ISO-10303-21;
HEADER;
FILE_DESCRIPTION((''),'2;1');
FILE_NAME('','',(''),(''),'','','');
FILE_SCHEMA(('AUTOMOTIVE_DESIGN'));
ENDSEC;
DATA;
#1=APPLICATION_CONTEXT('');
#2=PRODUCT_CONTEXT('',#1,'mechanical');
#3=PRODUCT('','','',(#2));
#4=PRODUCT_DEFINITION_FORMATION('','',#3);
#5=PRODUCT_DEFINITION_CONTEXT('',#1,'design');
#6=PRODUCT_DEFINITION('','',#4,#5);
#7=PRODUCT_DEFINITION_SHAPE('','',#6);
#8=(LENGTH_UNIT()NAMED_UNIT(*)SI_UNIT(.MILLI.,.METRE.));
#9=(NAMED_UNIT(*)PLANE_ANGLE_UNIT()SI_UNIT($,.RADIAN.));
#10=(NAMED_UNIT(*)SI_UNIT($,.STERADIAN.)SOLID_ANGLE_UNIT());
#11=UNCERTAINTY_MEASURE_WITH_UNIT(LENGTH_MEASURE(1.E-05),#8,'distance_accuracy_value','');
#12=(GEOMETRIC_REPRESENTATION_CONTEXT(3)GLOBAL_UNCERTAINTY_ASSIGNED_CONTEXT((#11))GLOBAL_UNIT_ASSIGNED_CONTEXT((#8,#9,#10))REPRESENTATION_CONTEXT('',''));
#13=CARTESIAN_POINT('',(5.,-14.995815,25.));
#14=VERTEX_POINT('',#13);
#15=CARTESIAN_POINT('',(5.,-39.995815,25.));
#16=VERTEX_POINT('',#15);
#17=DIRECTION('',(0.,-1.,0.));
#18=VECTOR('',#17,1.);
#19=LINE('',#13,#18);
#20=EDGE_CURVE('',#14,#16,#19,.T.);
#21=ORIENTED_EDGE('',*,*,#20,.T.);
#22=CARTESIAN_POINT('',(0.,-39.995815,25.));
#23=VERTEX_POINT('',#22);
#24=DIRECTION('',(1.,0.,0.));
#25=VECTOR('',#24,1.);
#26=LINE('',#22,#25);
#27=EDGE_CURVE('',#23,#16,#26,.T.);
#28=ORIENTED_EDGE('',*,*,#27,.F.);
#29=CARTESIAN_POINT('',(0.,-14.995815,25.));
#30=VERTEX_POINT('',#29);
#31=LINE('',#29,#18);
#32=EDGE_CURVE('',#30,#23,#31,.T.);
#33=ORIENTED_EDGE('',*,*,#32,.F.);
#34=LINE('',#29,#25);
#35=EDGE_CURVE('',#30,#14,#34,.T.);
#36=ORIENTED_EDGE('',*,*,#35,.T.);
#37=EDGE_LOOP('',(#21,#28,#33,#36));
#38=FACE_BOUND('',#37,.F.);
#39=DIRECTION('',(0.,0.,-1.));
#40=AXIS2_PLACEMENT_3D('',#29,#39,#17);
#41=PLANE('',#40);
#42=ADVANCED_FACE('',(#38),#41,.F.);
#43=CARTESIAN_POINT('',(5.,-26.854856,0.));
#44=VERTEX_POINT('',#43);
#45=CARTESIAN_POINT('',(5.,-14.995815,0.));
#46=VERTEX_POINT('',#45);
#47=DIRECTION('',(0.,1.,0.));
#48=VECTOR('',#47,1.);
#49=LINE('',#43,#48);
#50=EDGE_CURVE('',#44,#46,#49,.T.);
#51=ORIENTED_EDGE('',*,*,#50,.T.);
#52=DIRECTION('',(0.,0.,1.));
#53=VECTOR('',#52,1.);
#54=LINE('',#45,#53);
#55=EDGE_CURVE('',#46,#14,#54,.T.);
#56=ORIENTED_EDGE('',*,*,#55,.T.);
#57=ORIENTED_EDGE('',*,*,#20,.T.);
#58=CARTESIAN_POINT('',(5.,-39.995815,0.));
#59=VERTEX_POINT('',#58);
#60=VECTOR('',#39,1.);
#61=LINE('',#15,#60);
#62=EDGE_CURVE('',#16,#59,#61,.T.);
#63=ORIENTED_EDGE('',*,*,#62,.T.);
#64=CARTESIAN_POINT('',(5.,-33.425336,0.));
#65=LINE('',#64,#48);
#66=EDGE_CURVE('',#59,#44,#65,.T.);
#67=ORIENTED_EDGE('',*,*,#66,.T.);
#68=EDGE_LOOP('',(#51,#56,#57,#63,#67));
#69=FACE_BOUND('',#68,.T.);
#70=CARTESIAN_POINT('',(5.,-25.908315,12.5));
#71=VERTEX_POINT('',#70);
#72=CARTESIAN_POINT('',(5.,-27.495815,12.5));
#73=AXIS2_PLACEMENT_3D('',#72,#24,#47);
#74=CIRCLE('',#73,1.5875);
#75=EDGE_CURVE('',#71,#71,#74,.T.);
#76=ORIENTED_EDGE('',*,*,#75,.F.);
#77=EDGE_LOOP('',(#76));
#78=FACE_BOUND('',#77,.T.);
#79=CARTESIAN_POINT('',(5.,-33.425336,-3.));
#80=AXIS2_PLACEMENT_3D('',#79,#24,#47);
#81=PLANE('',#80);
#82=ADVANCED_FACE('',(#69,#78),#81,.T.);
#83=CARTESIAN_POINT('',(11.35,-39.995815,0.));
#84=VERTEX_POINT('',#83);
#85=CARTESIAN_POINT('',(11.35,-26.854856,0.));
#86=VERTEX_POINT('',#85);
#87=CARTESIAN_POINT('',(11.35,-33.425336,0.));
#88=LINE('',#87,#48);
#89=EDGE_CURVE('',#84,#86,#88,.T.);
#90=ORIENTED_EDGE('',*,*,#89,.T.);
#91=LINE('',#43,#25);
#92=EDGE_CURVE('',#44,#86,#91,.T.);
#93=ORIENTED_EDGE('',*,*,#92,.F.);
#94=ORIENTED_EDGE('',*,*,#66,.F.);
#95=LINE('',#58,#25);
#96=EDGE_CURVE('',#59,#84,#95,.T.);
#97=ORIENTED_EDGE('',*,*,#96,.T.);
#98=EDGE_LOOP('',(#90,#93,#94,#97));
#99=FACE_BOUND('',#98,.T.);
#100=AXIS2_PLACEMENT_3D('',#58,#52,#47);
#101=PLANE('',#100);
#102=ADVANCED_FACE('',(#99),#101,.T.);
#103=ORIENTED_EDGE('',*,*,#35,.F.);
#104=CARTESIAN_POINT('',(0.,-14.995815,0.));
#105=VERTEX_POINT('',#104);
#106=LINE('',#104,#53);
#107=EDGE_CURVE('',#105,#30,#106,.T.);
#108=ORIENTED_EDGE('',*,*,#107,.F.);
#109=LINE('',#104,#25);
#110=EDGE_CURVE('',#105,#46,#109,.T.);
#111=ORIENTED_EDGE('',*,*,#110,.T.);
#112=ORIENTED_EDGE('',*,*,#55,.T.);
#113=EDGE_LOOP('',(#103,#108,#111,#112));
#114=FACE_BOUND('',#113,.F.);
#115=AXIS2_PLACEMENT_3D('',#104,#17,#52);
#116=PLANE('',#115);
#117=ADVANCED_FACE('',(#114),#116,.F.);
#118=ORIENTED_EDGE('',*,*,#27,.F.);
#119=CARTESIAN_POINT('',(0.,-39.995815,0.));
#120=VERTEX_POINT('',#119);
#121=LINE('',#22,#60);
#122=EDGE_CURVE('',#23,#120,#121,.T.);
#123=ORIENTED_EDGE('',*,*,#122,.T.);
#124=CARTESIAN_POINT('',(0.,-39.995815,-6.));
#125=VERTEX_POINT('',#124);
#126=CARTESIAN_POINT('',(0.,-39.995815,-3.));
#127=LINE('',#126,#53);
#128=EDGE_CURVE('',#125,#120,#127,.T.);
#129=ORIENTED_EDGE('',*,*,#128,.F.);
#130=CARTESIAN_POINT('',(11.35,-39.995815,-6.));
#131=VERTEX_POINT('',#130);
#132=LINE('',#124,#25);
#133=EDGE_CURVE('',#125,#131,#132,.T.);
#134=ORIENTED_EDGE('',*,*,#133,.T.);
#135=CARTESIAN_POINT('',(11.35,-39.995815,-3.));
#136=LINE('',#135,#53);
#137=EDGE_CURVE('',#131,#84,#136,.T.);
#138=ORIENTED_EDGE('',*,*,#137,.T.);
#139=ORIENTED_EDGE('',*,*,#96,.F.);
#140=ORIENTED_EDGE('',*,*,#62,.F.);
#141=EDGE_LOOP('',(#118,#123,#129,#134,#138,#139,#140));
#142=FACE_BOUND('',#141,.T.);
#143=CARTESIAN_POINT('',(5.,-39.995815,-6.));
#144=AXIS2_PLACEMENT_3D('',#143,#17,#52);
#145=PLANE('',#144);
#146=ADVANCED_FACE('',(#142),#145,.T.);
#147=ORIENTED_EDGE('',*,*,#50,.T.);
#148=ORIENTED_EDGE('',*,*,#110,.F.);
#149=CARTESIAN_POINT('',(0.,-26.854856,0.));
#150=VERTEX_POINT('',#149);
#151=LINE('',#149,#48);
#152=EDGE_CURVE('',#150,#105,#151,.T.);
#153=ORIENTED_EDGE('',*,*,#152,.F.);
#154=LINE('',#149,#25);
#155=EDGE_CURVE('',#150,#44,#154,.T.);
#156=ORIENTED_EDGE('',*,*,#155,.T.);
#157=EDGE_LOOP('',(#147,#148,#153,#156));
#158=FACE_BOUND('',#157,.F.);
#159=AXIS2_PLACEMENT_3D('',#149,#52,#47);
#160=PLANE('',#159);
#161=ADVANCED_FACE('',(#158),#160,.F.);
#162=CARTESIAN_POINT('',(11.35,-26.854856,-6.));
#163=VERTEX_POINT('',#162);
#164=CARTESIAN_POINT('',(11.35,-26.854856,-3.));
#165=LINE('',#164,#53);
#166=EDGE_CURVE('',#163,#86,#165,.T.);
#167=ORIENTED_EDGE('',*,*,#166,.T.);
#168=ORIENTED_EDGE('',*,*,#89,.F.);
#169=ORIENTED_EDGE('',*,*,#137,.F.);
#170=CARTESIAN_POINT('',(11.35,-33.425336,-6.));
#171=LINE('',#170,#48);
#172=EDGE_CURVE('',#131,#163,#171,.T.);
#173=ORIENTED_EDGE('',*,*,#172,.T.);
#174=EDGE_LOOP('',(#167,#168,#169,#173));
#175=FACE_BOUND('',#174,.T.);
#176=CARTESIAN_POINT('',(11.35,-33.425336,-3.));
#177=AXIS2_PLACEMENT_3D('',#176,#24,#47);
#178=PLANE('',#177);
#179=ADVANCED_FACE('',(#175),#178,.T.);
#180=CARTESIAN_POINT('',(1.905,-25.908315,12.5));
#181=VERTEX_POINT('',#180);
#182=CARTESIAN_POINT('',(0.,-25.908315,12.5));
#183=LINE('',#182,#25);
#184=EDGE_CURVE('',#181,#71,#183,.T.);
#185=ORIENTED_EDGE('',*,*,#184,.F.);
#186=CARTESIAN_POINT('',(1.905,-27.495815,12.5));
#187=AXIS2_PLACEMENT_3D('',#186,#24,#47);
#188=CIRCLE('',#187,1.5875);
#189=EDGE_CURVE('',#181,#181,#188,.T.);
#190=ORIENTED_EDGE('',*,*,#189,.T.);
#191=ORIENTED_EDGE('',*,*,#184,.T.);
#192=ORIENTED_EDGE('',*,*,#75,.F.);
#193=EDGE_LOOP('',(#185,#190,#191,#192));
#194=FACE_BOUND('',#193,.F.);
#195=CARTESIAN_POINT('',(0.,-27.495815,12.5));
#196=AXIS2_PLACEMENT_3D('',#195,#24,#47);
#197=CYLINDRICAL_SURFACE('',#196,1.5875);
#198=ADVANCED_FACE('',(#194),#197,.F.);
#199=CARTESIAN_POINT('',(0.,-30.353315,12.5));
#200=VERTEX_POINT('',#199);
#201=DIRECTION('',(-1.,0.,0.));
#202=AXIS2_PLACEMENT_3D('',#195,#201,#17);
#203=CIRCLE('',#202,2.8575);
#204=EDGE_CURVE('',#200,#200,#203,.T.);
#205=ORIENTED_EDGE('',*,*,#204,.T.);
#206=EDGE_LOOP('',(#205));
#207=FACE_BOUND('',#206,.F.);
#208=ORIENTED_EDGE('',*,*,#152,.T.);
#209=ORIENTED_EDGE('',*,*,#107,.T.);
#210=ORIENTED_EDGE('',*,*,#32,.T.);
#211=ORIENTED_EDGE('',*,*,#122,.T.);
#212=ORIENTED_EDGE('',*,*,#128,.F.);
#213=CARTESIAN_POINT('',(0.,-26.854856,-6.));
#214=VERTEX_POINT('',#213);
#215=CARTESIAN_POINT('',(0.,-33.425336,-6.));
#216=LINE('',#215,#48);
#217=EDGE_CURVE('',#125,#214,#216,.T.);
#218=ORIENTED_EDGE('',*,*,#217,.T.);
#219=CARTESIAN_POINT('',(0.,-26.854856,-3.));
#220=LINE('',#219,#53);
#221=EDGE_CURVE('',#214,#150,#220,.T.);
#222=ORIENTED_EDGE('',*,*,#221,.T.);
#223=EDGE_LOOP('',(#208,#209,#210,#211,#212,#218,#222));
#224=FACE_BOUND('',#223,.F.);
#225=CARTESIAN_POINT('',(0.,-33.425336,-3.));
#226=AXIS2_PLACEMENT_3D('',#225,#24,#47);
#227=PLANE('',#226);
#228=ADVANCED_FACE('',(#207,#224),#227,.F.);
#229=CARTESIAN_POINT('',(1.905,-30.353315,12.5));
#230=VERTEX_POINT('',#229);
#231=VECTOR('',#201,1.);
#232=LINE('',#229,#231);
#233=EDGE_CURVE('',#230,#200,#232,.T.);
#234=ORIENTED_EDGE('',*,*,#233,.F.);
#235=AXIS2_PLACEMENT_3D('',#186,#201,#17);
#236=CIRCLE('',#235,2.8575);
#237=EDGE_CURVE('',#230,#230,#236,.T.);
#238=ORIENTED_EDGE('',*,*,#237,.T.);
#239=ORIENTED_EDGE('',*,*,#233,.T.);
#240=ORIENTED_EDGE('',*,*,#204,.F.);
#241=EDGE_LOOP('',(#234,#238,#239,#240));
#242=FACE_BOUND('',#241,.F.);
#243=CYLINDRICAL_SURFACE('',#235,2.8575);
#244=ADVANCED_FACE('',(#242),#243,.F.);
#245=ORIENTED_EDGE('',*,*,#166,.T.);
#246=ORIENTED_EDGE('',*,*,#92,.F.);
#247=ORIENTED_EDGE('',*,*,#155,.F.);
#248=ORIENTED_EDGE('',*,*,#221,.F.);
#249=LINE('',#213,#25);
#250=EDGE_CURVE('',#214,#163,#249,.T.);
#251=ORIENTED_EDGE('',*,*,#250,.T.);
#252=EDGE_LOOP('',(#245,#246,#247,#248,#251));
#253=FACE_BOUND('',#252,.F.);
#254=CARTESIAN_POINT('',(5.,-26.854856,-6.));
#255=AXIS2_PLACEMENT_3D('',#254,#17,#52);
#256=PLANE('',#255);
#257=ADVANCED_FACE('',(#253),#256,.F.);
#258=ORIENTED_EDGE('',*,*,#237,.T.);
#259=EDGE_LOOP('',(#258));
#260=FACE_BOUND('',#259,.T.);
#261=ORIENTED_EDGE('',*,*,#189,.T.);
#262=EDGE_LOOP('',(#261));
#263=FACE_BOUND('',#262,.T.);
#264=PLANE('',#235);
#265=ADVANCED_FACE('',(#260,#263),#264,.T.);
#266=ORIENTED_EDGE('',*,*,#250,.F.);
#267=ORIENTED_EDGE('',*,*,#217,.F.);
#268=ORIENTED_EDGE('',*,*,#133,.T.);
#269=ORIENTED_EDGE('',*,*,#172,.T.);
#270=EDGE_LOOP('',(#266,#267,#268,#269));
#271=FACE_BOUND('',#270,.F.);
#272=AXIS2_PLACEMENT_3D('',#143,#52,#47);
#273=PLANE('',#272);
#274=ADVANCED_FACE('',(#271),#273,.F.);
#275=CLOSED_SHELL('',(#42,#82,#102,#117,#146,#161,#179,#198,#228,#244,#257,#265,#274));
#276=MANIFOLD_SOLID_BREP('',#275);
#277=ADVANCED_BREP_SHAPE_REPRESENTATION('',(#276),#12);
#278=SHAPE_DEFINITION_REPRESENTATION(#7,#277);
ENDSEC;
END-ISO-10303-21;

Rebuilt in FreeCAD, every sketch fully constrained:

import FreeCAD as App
import Part
import Sketcher
from FreeCAD import Vector
Q = App.Units.Quantity

doc = App.newDocument("Part")
params = doc.addObject("Spreadsheet::Sheet", "Params")
for row, (alias, value) in enumerate([
    ("sketch1_width", "25 mm"),
    ("sketch1_height", "6 mm"),
    ("pad1_length", "5 mm"),
    ("hole_diameter", "3.175 mm"),
    ("hole_cbore_diameter", "5.715 mm"),
    ("hole_cbore_depth", "1.905 mm"),
    ("sketch3_height", "6 mm"),
    ("pad2_length", "6.35 mm"),
], start=1):
    params.set(f"A{row}", alias)
    params.set(f"B{row}", "=" + value)
    params.setAlias(f"B{row}", alias)

body = doc.addObject("PartDesign::Body", "Body")

# Sketch on YZ plane
sketch1 = body.newObject("Sketcher::SketchObject", "Sketch")
sketch1.AttachmentSupport = (doc.getObject("YZ_Plane"), [""])
sketch1.MapMode = "FlatFace"
sketch1.addGeometry(Part.LineSegment(Vector(-40, 0, 0), Vector(-40, -6, 0)), False)
sketch1.addGeometry(Part.LineSegment(Vector(-40, -6, 0), Vector(-27, -6, 0)), False)
sketch1.addGeometry(Part.LineSegment(Vector(-27, -6, 0), Vector(-27, 0, 0)), False)
sketch1.addGeometry(Part.LineSegment(Vector(-27, 0, 0), Vector(-15, 0, 0)), False)
sketch1.addGeometry(Part.LineSegment(Vector(-15, 0, 0), Vector(-15, 25, 0)), False)
sketch1.addGeometry(Part.LineSegment(Vector(-15, 25, 0), Vector(-40, 25, 0)), False)
sketch1.addGeometry(Part.LineSegment(Vector(-40, 25, 0), Vector(-40, 0, 0)), False)
sketch1.addConstraint(Sketcher.Constraint("Coincident", 0, 2, 1, 1))
sketch1.addConstraint(Sketcher.Constraint("Coincident", 1, 2, 2, 1))
sketch1.addConstraint(Sketcher.Constraint("Coincident", 2, 2, 3, 1))
sketch1.addConstraint(Sketcher.Constraint("Coincident", 3, 2, 4, 1))
sketch1.addConstraint(Sketcher.Constraint("Coincident", 4, 2, 5, 1))
sketch1.addConstraint(Sketcher.Constraint("Coincident", 5, 2, 6, 1))
sketch1.addConstraint(Sketcher.Constraint("Coincident", 6, 2, 0, 1))
sketch1.addConstraint(Sketcher.Constraint("Vertical", 0))
sketch1.addConstraint(Sketcher.Constraint("Horizontal", 1))
sketch1.addConstraint(Sketcher.Constraint("Vertical", 2))
sketch1.addConstraint(Sketcher.Constraint("Horizontal", 3))
sketch1.addConstraint(Sketcher.Constraint("Vertical", 4))
sketch1.addConstraint(Sketcher.Constraint("Horizontal", 5))
sketch1.addConstraint(Sketcher.Constraint("Vertical", 6))
sketch1.addConstraint(Sketcher.Constraint("PointOnObject", 2, 2, -1))
sketch1.addConstraint(Sketcher.Constraint("PointOnObject", 6, 2, -1))
sketch1.addConstraint(Sketcher.Constraint("Equal", 5, 4))
sketch1.addConstraint(Sketcher.Constraint("DistanceX", 5, 2, 5, 1, Q("25 mm")))
sketch1.addConstraint(Sketcher.Constraint("DistanceY", 0, 2, 0, 1, Q("6 mm")))
sketch1.addConstraint(Sketcher.Constraint("DistanceX", 1, 1, 1, 2, Q("13.140959 mm")))
sketch1.addConstraint(Sketcher.Constraint("DistanceX", 0, 2, -1, 1, Q("39.995815 mm")))
sketch1.setExpression("Constraints[17]", "Params.sketch1_width")
sketch1.setExpression("Constraints[18]", "Params.sketch1_height")
pad1 = body.newObject("PartDesign::Pad", "Pad")
pad1.Profile = sketch1
pad1.setExpression("Length", "Params.pad1_length")

# Sketch on YZ plane
sketch2 = body.newObject("Sketcher::SketchObject", "Sketch001")
sketch2.AttachmentSupport = (doc.getObject("YZ_Plane"), [""])
sketch2.MapMode = "FlatFace"
sketch2.addGeometry(Part.Circle(Vector(-27.5, 12.5, 0), Vector(0, 0, 1), 1.6), False)
sketch2.addConstraint(Sketcher.Constraint("Diameter", 0, Q("3.175 mm")))
sketch2.addConstraint(Sketcher.Constraint("DistanceY", -1, 1, 0, 3, Q("12.5 mm")))
sketch2.addConstraint(Sketcher.Constraint("DistanceX", 0, 3, -1, 1, Q("27.495815 mm")))
doc.recompute()
hole = body.newObject("PartDesign::Hole", "Hole")
hole.Profile = sketch2
hole.ThreadType = "None"
hole.setExpression("Diameter", "Params.hole_diameter")
hole.DepthType = "ThroughAll"
hole.HoleCutType = "Counterbore"
hole.setExpression("HoleCutDiameter", "Params.hole_cbore_diameter")
hole.setExpression("HoleCutDepth", "Params.hole_cbore_depth")
hole.Reversed = True

# Sketch on YZ plane
sketch3 = body.newObject("Sketcher::SketchObject", "Sketch002")
sketch3.AttachmentSupport = (doc.getObject("YZ_Plane"), [""])
sketch3.MapMode = "FlatFace"
sketch3.AttachmentOffset = App.Placement(Vector(0, 0, 5), App.Rotation())
sketch3.addGeometry(Part.LineSegment(Vector(-40, 0, 0), Vector(-40, -6, 0)), False)
sketch3.addGeometry(Part.LineSegment(Vector(-40, -6, 0), Vector(-27, -6, 0)), False)
sketch3.addGeometry(Part.LineSegment(Vector(-27, -6, 0), Vector(-27, 0, 0)), False)
sketch3.addGeometry(Part.LineSegment(Vector(-27, 0, 0), Vector(-40, 0, 0)), False)
sketch3.addConstraint(Sketcher.Constraint("Coincident", 0, 2, 1, 1))
sketch3.addConstraint(Sketcher.Constraint("Coincident", 1, 2, 2, 1))
sketch3.addConstraint(Sketcher.Constraint("Coincident", 2, 2, 3, 1))
sketch3.addConstraint(Sketcher.Constraint("Coincident", 3, 2, 0, 1))
sketch3.addConstraint(Sketcher.Constraint("Vertical", 0))
sketch3.addConstraint(Sketcher.Constraint("Horizontal", 1))
sketch3.addConstraint(Sketcher.Constraint("Vertical", 2))
sketch3.addConstraint(Sketcher.Constraint("Horizontal", 3))
sketch3.addConstraint(Sketcher.Constraint("PointOnObject", 2, 2, -1))
sketch3.addConstraint(Sketcher.Constraint("DistanceY", 0, 2, 0, 1, Q("6 mm")))
sketch3.addConstraint(Sketcher.Constraint("DistanceX", 1, 1, 1, 2, Q("13.140959 mm")))
sketch3.addConstraint(Sketcher.Constraint("DistanceX", 0, 2, -1, 1, Q("39.995815 mm")))
sketch3.setExpression("Constraints[9]", "Params.sketch3_height")
pad2 = body.newObject("PartDesign::Pad", "Pad001")
pad2.Profile = sketch3
pad2.setExpression("Length", "Params.pad2_length")

doc.recompute()
